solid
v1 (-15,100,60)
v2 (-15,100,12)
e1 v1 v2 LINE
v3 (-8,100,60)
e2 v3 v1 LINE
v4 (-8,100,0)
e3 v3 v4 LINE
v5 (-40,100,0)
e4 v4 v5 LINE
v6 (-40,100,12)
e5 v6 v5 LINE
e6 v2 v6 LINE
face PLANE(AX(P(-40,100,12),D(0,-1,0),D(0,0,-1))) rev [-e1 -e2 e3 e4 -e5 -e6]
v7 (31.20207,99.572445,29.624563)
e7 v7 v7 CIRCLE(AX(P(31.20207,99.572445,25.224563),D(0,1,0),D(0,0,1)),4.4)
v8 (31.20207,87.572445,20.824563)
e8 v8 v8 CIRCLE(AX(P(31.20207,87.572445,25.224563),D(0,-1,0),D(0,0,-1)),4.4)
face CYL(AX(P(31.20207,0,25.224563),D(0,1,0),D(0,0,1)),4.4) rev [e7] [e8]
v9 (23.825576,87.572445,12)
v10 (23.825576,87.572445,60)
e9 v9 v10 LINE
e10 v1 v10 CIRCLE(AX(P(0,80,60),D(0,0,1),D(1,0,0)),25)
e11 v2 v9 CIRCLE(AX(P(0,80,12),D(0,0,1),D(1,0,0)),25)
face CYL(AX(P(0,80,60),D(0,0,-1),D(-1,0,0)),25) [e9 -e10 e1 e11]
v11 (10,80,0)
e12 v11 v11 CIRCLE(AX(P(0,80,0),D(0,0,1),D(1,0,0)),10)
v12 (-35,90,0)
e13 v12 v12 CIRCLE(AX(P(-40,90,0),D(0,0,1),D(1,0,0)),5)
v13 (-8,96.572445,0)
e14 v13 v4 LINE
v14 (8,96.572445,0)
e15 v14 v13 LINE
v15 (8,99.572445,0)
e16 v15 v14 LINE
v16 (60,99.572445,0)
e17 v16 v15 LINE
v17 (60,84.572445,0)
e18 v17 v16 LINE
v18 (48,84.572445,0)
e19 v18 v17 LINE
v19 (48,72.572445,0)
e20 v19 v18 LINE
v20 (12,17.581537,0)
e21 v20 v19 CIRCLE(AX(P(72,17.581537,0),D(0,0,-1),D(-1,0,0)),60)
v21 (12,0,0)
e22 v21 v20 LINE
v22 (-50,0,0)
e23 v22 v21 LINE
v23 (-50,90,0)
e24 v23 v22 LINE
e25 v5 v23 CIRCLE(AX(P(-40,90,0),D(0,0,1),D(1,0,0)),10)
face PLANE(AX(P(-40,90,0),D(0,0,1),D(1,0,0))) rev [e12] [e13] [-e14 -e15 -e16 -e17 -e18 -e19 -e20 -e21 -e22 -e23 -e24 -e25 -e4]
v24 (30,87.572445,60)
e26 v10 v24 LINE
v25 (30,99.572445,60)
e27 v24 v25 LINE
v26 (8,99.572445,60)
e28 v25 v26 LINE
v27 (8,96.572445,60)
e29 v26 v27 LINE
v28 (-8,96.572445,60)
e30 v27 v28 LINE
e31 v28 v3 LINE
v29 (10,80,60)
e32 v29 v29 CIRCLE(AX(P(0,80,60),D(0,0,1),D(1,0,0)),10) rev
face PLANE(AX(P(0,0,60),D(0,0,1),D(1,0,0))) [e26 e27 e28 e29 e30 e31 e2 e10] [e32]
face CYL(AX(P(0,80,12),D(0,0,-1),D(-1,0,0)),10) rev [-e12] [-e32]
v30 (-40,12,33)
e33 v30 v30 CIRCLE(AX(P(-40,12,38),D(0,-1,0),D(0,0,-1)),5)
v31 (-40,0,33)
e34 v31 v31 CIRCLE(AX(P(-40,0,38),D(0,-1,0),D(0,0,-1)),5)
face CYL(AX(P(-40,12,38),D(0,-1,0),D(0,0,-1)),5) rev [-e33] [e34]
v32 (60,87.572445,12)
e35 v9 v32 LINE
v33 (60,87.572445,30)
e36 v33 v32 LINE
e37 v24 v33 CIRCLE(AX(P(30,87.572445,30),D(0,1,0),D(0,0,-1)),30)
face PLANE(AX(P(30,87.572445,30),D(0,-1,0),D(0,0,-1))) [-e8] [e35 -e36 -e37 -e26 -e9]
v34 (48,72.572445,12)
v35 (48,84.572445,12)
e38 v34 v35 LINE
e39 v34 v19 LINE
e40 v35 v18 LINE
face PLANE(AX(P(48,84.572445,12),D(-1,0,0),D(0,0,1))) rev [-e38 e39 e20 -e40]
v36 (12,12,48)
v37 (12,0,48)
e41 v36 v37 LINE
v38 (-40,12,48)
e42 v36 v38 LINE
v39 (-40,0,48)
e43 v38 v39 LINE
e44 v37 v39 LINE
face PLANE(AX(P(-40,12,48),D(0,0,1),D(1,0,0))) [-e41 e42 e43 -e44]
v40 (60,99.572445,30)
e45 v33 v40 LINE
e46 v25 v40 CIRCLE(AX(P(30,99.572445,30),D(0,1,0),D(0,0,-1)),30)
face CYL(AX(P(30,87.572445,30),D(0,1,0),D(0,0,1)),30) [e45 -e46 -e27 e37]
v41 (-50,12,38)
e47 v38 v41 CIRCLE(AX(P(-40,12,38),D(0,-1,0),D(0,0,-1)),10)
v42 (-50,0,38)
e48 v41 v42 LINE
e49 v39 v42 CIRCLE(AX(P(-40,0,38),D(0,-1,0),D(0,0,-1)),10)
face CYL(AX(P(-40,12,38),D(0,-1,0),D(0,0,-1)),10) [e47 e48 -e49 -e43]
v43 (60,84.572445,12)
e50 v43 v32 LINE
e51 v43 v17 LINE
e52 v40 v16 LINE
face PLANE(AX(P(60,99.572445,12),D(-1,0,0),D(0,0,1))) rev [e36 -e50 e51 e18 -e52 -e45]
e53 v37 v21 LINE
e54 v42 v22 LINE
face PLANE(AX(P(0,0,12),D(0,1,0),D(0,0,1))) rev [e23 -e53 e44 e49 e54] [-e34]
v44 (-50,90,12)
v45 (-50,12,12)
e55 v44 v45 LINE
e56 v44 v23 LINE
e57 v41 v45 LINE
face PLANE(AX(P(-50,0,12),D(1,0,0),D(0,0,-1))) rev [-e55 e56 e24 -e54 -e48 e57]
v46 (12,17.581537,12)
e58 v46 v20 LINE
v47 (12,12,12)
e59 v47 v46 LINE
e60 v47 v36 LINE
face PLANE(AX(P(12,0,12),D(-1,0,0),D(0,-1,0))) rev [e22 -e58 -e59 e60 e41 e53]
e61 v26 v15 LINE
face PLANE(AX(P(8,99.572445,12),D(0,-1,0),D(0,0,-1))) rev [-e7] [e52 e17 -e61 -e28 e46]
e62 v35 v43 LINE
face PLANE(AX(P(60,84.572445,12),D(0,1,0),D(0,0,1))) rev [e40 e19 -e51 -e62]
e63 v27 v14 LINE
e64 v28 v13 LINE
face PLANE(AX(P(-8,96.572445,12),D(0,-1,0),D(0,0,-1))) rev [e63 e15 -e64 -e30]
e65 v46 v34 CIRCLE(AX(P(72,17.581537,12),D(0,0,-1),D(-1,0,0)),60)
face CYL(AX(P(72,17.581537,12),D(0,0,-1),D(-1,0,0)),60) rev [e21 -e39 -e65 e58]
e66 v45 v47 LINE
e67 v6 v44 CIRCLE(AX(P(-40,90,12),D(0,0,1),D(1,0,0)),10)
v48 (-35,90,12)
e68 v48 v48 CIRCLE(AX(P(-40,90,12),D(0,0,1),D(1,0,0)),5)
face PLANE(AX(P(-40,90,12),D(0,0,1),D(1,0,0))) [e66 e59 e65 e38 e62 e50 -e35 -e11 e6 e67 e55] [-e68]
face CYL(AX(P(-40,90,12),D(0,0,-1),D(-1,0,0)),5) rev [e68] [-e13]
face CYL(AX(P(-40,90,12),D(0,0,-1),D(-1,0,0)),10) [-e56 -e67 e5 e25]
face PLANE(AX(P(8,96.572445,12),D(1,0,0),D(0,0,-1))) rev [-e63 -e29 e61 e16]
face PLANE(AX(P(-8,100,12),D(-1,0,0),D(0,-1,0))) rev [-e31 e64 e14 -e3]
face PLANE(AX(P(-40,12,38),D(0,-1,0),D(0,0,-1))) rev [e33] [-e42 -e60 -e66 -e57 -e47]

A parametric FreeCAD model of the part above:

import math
import FreeCAD as App
import Part
import Sketcher
Q = App.Units.Quantity

doc = App.newDocument("Part")
body = doc.addObject("PartDesign::Body", "Body")

sketch1 = body.newObject("Sketcher::SketchObject", "Sketch")
sketch1.AttachmentSupport = (doc.getObject("XY_Plane"), [""])
sketch1.MapMode = "FlatFace"
sketch1.addGeometry(Part.LineSegment(App.Vector(-50, 90, 0), App.Vector(-50, 0, 0)), False)
sketch1.addGeometry(Part.LineSegment(App.Vector(-50, 0, 0), App.Vector(12, 0, 0)), False)
sketch1.addGeometry(Part.LineSegment(App.Vector(12, 0, 0), App.Vector(12, 17.6, 0)), False)
sketch1.addGeometry(Part.ArcOfCircle(Part.Circle(App.Vector(72, 17.6, 0), App.Vector(0, 0, 1), 60), math.radians(114), math.radians(180)), False)
sketch1.addGeometry(Part.LineSegment(App.Vector(48, 72.6, 0), App.Vector(48, 84.6, 0)), False)
sketch1.addGeometry(Part.LineSegment(App.Vector(48, 84.6, 0), App.Vector(60, 84.6, 0)), False)
sketch1.addGeometry(Part.LineSegment(App.Vector(60, 84.6, 0), App.Vector(60, 99.6, 0)), False)
sketch1.addGeometry(Part.LineSegment(App.Vector(60, 99.6, 0), App.Vector(8, 99.6, 0)), False)
sketch1.addGeometry(Part.LineSegment(App.Vector(8, 99.6, 0), App.Vector(8, 96.6, 0)), False)
sketch1.addGeometry(Part.LineSegment(App.Vector(8, 96.6, 0), App.Vector(-8, 96.6, 0)), False)
sketch1.addGeometry(Part.LineSegment(App.Vector(-8, 96.6, 0), App.Vector(-8, 100, 0)), False)
sketch1.addGeometry(Part.LineSegment(App.Vector(-8, 100, 0), App.Vector(-40, 100, 0)), False)
sketch1.addGeometry(Part.ArcOfCircle(Part.Circle(App.Vector(-40, 90, 0), App.Vector(0, 0, 1), 10), math.radians(90), math.radians(180)), False)
sketch1.addGeometry(Part.Circle(App.Vector(0, 80, 0), App.Vector(0, 0, 1), 10), False)
sketch1.addGeometry(Part.Circle(App.Vector(-40, 90, 0), App.Vector(0, 0, 1), 5), False)
sketch1.addConstraint(Sketcher.Constraint("Coincident", 0, 2, 1, 1))
sketch1.addConstraint(Sketcher.Constraint("Coincident", 1, 2, 2, 1))
sketch1.addConstraint(Sketcher.Constraint("Tangent", 2, 2, 3, 2))
sketch1.addConstraint(Sketcher.Constraint("Coincident", 3, 1, 4, 1))
sketch1.addConstraint(Sketcher.Constraint("Coincident", 4, 2, 5, 1))
sketch1.addConstraint(Sketcher.Constraint("Coincident", 5, 2, 6, 1))
sketch1.addConstraint(Sketcher.Constraint("Coincident", 6, 2, 7, 1))
sketch1.addConstraint(Sketcher.Constraint("Coincident", 7, 2, 8, 1))
sketch1.addConstraint(Sketcher.Constraint("Coincident", 8, 2, 9, 1))
sketch1.addConstraint(Sketcher.Constraint("Coincident", 9, 2, 10, 1))
sketch1.addConstraint(Sketcher.Constraint("Coincident", 10, 2, 11, 1))
sketch1.addConstraint(Sketcher.Constraint("Tangent", 11, 2, 12, 1))
sketch1.addConstraint(Sketcher.Constraint("Tangent", 12, 2, 0, 1))
sketch1.addConstraint(Sketcher.Constraint("Vertical", 0))
sketch1.addConstraint(Sketcher.Constraint("Horizontal", 1))
sketch1.addConstraint(Sketcher.Constraint("Vertical", 2))
sketch1.addConstraint(Sketcher.Constraint("Vertical", 4))
sketch1.addConstraint(Sketcher.Constraint("Horizontal", 5))
sketch1.addConstraint(Sketcher.Constraint("Vertical", 6))
sketch1.addConstraint(Sketcher.Constraint("Horizontal", 7))
sketch1.addConstraint(Sketcher.Constraint("Vertical", 8))
sketch1.addConstraint(Sketcher.Constraint("Horizontal", 9))
sketch1.addConstraint(Sketcher.Constraint("Vertical", 10))
sketch1.addConstraint(Sketcher.Constraint("Horizontal", 11))
sketch1.addConstraint(Sketcher.Constraint("Coincident", 14, 3, 12, 3))
sketch1.addConstraint(Sketcher.Constraint("Equal", 12, 13))
sketch1.addConstraint(Sketcher.Constraint("PointOnObject", 13, 3, -2))
sketch1.addConstraint(Sketcher.Constraint("PointOnObject", 0, 2, -1))
sketch1.addConstraint(Sketcher.Constraint("Equal", 5, 4))
sketch1.addConstraint(Sketcher.Constraint("Diameter", 13, Q("20 mm")))
sketch1.addConstraint(Sketcher.Constraint("Diameter", 14, Q("10 mm")))
sketch1.addConstraint(Sketcher.Constraint("Radius", 3, Q("60 mm")))
sketch1.addConstraint(Sketcher.Constraint("DistanceX", 1, 1, 1, 2, Q("62 mm")))
sketch1.addConstraint(Sketcher.Constraint("DistanceX", 5, 1, 5, 2, Q("12 mm")))
sketch1.addConstraint(Sketcher.Constraint("DistanceX", 7, 2, 7, 1, Q("52 mm")))
sketch1.addConstraint(Sketcher.Constraint("DistanceX", 9, 2, 9, 1, Q("16 mm")))
sketch1.addConstraint(Sketcher.Constraint("DistanceX", 11, 2, 11, 1, Q("32 mm")))
sketch1.addConstraint(Sketcher.Constraint("DistanceY", 0, 2, 0, 1, Q("90 mm")))
sketch1.addConstraint(Sketcher.Constraint("DistanceY", 6, 1, 6, 2, Q("15 mm")))
sketch1.addConstraint(Sketcher.Constraint("DistanceY", 8, 2, 8, 1, Q("3 mm")))
sketch1.addConstraint(Sketcher.Constraint("DistanceX", -1, 1, 3, 3, Q("72 mm")))
sketch1.addConstraint(Sketcher.Constraint("DistanceY", -1, 1, 13, 3, Q("80 mm")))
sketch1.addConstraint(Sketcher.Constraint("DistanceY", 2, 1, 2, 2, Q("17.581537 mm")))
pad1 = body.newObject("PartDesign::Pad", "Pad")
pad1.Profile = sketch1
pad1.Length = 12

sketch2 = body.newObject("Sketcher::SketchObject", "Sketch001")
sketch2.AttachmentSupport = (doc.getObject("XZ_Plane"), [""])
sketch2.MapMode = "FlatFace"
sketch2.addGeometry(Part.LineSegment(App.Vector(-50, 38, 0), App.Vector(-50, 0, 0)), False)
sketch2.addGeometry(Part.LineSegment(App.Vector(-50, 0, 0), App.Vector(12, 0, 0)), False)
sketch2.addGeometry(Part.LineSegment(App.Vector(12, 0, 0), App.Vector(12, 48, 0)), False)
sketch2.addGeometry(Part.LineSegment(App.Vector(12, 48, 0), App.Vector(-40, 48, 0)), False)
sketch2.addGeometry(Part.ArcOfCircle(Part.Circle(App.Vector(-40, 38, 0), App.Vector(0, 0, 1), 10), math.radians(90), math.radians(180)), False)
sketch2.addGeometry(Part.Circle(App.Vector(-40, 38, 0), App.Vector(0, 0, 1), 5), False)
sketch2.addConstraint(Sketcher.Constraint("Coincident", 0, 2, 1, 1))
sketch2.addConstraint(Sketcher.Constraint("Coincident", 1, 2, 2, 1))
sketch2.addConstraint(Sketcher.Constraint("Coincident", 2, 2, 3, 1))
sketch2.addConstraint(Sketcher.Constraint("Tangent", 3, 2, 4, 1))
sketch2.addConstraint(Sketcher.Constraint("Tangent", 4, 2, 0, 1))
sketch2.addConstraint(Sketcher.Constraint("Vertical", 0))
sketch2.addConstraint(Sketcher.Constraint("Horizontal", 1))
sketch2.addConstraint(Sketcher.Constraint("Vertical", 2))
sketch2.addConstraint(Sketcher.Constraint("Horizontal", 3))
sketch2.addConstraint(Sketcher.Constraint("Coincident", 5, 3, 4, 3))
sketch2.addConstraint(Sketcher.Constraint("PointOnObject", 0, 2, -1))
sketch2.addConstraint(Sketcher.Constraint("Diameter", 5, Q("10 mm")))
sketch2.addConstraint(Sketcher.Constraint("Radius", 4, Q("10 mm")))
sketch2.addConstraint(Sketcher.Constraint("DistanceX", 1, 1, 1, 2, Q("62 mm")))
sketch2.addConstraint(Sketcher.Constraint("DistanceY", 0, 2, 0, 1, Q("38 mm")))
sketch2.addConstraint(Sketcher.Constraint("DistanceX", 4, 3, -1, 1, Q("40 mm")))
pad2 = body.newObject("PartDesign::Pad", "Pad001")
pad2.Profile = sketch2
pad2.Length = 12
pad2.Reversed = True

sketch3 = body.newObject("Sketcher::SketchObject", "Sketch002")
sketch3.AttachmentSupport = (doc.getObject("XY_Plane"), [""])
sketch3.MapMode = "FlatFace"
sketch3.AttachmentOffset = App.Placement(App.Vector(0, 0, 12), App.Rotation())
sketch3.addGeometry(Part.ArcOfCircle(Part.Circle(App.Vector(0, 80, 0), App.Vector(0, 0, 1), 25), math.radians(127), math.radians(412)), False)
sketch3.addGeometry(Part.LineSegment(App.Vector(15.6, 99.6, 0), App.Vector(8, 99.6, 0)), False)
sketch3.addGeometry(Part.LineSegment(App.Vector(8, 99.6, 0), App.Vector(8, 96.6, 0)), False)
sketch3.addGeometry(Part.LineSegment(App.Vector(8, 96.6, 0), App.Vector(-8, 96.6, 0)), False)
sketch3.addGeometry(Part.LineSegment(App.Vector(-8, 96.6, 0), App.Vector(-8, 100, 0)), False)
sketch3.addGeometry(Part.LineSegment(App.Vector(-8, 100, 0), App.Vector(-15, 100, 0)), False)
sketch3.addGeometry(Part.Circle(App.Vector(0, 80, 0), App.Vector(0, 0, 1), 10), False)
sketch3.addConstraint(Sketcher.Constraint("Coincident", 0, 2, 1, 1))
sketch3.addConstraint(Sketcher.Constraint("Coincident", 1, 2, 2, 1))
sketch3.addConstraint(Sketcher.Constraint("Coincident", 2, 2, 3, 1))
sketch3.addConstraint(Sketcher.Constraint("Coincident", 3, 2, 4, 1))
sketch3.addConstraint(Sketcher.Constraint("Coincident", 4, 2, 5, 1))
sketch3.addConstraint(Sketcher.Constraint("Coincident", 5, 2, 0, 1))
sketch3.addConstraint(Sketcher.Constraint("Horizontal", 1))
sketch3.addConstraint(Sketcher.Constraint("Vertical", 2))
sketch3.addConstraint(Sketcher.Constraint("Horizontal", 3))
sketch3.addConstraint(Sketcher.Constraint("Vertical", 4))
sketch3.addConstraint(Sketcher.Constraint("Horizontal", 5))
sketch3.addConstraint(Sketcher.Constraint("Coincident", 6, 3, 0, 3))
sketch3.addConstraint(Sketcher.Constraint("PointOnObject", 0, 3, -2))
sketch3.addConstraint(Sketcher.Constraint("Diameter", 6, Q("20 mm")))
sketch3.addConstraint(Sketcher.Constraint("Radius", 0, Q("25 mm")))
sketch3.addConstraint(Sketcher.Constraint("DistanceX", 3, 2, 3, 1, Q("16 mm")))
sketch3.addConstraint(Sketcher.Constraint("DistanceX", 5, 2, 5, 1, Q("7 mm")))
sketch3.addConstraint(Sketcher.Constraint("DistanceY", 2, 2, 2, 1, Q("3 mm")))
sketch3.addConstraint(Sketcher.Constraint("DistanceY", -1, 1, 0, 3, Q("80 mm")))
sketch3.addConstraint(Sketcher.Constraint("DistanceX", -1, 1, 1, 2, Q("8 mm")))
sketch3.addConstraint(Sketcher.Constraint("DistanceX", 1, 2, 1, 1, Q("7.553758 mm")))
pad3 = body.newObject("PartDesign::Pad", "Pad002")
pad3.Profile = sketch3
pad3.Length = 48

sketch4 = body.newObject("Sketcher::SketchObject", "Sketch003")
sketch4.AttachmentSupport = (doc.getObject("XZ_Plane"), [""])
sketch4.MapMode = "FlatFace"
sketch4.AttachmentOffset = App.Placement(App.Vector(0, 0, -99.572445), App.Rotation())
sketch4.addGeometry(Part.LineSegment(App.Vector(8, 0, 0), App.Vector(8, 60, 0)), False)
sketch4.addGeometry(Part.LineSegment(App.Vector(8, 60, 0), App.Vector(30, 60, 0)), False)
sketch4.addGeometry(Part.ArcOfCircle(Part.Circle(App.Vector(30, 30, 0), App.Vector(0, 0, 1), 30), math.radians(0), math.radians(90)), False)
sketch4.addGeometry(Part.LineSegment(App.Vector(60, 30, 0), App.Vector(60, 0, 0)), False)
sketch4.addGeometry(Part.LineSegment(App.Vector(60, 0, 0), App.Vector(8, 0, 0)), False)
sketch4.addConstraint(Sketcher.Constraint("Coincident", 0, 2, 1, 1))
sketch4.addConstraint(Sketcher.Constraint("Tangent", 1, 2, 2, 2))
sketch4.addConstraint(Sketcher.Constraint("Tangent", 2, 1, 3, 1))
sketch4.addConstraint(Sketcher.Constraint("Coincident", 3, 2, 4, 1))
sketch4.addConstraint(Sketcher.Constraint("Coincident", 4, 2, 0, 1))
sketch4.addConstraint(Sketcher.Constraint("Vertical", 0))
sketch4.addConstraint(Sketcher.Constraint("Horizontal", 1))
sketch4.addConstraint(Sketcher.Constraint("Vertical", 3))
sketch4.addConstraint(Sketcher.Constraint("Horizontal", 4))
sketch4.addConstraint(Sketcher.Constraint("PointOnObject", 3, 2, -1))
sketch4.addConstraint(Sketcher.Constraint("Radius", 2, Q("30 mm")))
sketch4.addConstraint(Sketcher.Constraint("DistanceX", 1, 1, 1, 2, Q("22 mm")))
sketch4.addConstraint(Sketcher.Constraint("DistanceY", 0, 1, 0, 2, Q("60 mm")))
sketch4.addConstraint(Sketcher.Constraint("DistanceX", -1, 1, 2, 3, Q("30 mm")))
pad4 = body.newObject("PartDesign::Pad", "Pad003")
pad4.Profile = sketch4
pad4.Length = 12

sketch5 = body.newObject("Sketcher::SketchObject", "Sketch004")
sketch5.AttachmentSupport = (doc.getObject("XZ_Plane"), [""])
sketch5.MapMode = "FlatFace"
sketch5.AttachmentOffset = App.Placement(App.Vector(0, 0, -99.572445), App.Rotation())
sketch5.addGeometry(Part.Circle(App.Vector(31.2, 25.2, 0), App.Vector(0, 0, 1), 4.4), False)
sketch5.addConstraint(Sketcher.Constraint("Diameter", 0, Q("8.8 mm")))
sketch5.addConstraint(Sketcher.Constraint("DistanceX", -1, 1, 0, 3, Q("31.20207 mm")))
sketch5.addConstraint(Sketcher.Constraint("DistanceY", -1, 1, 0, 3, Q("25.224563 mm")))
pocket1 = body.newObject("PartDesign::Pocket", "Pocket")
pocket1.Profile = sketch5
pocket1.Type = "ThroughAll"
pocket1.Reversed = True

doc.recompute()
